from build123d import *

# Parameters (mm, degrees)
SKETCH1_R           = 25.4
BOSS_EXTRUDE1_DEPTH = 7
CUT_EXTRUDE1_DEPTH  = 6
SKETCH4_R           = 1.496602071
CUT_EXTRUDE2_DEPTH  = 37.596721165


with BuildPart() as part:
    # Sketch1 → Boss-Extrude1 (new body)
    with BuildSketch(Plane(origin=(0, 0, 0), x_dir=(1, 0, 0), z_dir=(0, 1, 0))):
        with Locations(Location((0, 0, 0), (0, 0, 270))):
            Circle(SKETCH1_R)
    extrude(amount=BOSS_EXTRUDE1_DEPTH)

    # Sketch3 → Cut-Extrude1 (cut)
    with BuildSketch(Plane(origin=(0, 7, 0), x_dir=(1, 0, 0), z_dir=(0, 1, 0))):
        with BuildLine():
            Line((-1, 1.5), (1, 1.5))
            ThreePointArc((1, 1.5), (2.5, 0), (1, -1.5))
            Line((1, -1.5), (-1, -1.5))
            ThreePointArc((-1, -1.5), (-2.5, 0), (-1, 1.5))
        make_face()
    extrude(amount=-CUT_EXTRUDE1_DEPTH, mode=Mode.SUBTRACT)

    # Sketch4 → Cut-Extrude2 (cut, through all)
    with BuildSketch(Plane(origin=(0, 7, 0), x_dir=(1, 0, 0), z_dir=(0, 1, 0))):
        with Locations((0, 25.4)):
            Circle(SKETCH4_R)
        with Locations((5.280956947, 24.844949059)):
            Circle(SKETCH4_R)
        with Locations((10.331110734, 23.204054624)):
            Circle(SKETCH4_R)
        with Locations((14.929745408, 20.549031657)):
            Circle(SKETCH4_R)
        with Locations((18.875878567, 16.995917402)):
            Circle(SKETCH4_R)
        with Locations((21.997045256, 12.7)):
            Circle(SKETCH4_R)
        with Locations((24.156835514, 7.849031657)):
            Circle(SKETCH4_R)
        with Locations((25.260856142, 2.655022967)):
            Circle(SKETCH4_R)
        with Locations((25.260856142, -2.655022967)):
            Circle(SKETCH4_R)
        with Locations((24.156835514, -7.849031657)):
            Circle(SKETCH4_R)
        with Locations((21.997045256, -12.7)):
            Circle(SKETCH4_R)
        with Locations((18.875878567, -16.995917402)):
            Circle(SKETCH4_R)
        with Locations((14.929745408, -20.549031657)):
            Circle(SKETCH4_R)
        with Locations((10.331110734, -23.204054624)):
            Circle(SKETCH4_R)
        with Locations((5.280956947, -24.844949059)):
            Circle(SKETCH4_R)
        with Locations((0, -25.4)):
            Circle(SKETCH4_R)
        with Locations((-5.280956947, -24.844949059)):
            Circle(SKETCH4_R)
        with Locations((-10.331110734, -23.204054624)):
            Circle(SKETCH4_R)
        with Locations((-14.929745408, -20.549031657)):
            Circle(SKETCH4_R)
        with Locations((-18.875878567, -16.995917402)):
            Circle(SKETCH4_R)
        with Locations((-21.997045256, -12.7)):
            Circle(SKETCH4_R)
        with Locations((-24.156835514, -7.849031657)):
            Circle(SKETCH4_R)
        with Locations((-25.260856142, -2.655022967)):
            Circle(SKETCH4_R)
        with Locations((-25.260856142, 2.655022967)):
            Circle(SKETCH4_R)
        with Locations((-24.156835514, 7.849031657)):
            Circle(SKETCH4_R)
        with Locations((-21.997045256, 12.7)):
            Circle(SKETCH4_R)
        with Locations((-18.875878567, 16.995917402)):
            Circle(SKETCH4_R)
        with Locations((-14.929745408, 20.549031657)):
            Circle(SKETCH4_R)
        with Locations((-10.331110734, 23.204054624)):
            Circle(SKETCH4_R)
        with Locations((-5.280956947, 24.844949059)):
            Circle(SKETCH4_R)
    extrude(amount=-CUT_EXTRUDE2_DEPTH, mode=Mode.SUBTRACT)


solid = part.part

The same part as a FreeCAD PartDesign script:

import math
import FreeCAD as App
import Part
import Sketcher

V = App.Vector
Q = App.Units.Quantity

doc = App.newDocument("Part")
body = doc.addObject("PartDesign::Body", "Body")

# Sketch on XZ plane
sketch1 = body.newObject("Sketcher::SketchObject", "Sketch")
sketch1.AttachmentSupport = (doc.getObject("XZ_Plane"), [""])
sketch1.MapMode = "FlatFace"
sketch1.addGeometry(Part.Circle(V(0, 0, 0), V(0, 0, 1), 25), False)
sketch1.addConstraint([
    Sketcher.Constraint("Coincident", 0, 3, -1, 1),
    Sketcher.Constraint("Diameter", 0, Q("50.8 mm")),
])
pad1 = body.newObject("PartDesign::Pad", "Pad")
pad1.Profile = sketch1
pad1.Length = 7
pad1.Reversed = True

# Sketch on XZ plane
sketch2 = body.newObject("Sketcher::SketchObject", "Sketch001")
sketch2.AttachmentSupport = (doc.getObject("XZ_Plane"), [""])
sketch2.MapMode = "FlatFace"
sketch2.AttachmentOffset = App.Placement(V(0, 0, -7), App.Rotation())
sketch2.addGeometry([
    Part.LineSegment(V(1, -1.5, 0), V(-1, -1.5, 0)),
    Part.ArcOfCircle(Part.Circle(V(-1, 0, 0), V(0, 0, 1), 1.5), math.radians(90), math.radians(270)),
    Part.LineSegment(V(-1, 1.5, 0), V(1, 1.5, 0)),
    Part.ArcOfCircle(Part.Circle(V(1, 0, 0), V(0, 0, 1), 1.5), math.radians(-90), math.radians(90)),
], False)
sketch2.addConstraint([
    Sketcher.Constraint("Tangent", 0, 2, 1, 2),
    Sketcher.Constraint("Tangent", 1, 1, 2, 1),
    Sketcher.Constraint("Tangent", 2, 2, 3, 2),
    Sketcher.Constraint("Tangent", 3, 1, 0, 1),
    Sketcher.Constraint("Horizontal", 0),
    Sketcher.Constraint("Horizontal", 2),
    Sketcher.Constraint("Symmetric", 1, 3, 3, 3, -1, 1),
    Sketcher.Constraint("Radius", 1, Q("1.5 mm")),
    Sketcher.Constraint("DistanceX", 0, 2, 0, 1, Q("2 mm")),
])
pocket1 = body.newObject("PartDesign::Pocket", "Pocket")
pocket1.Profile = sketch2
pocket1.Length = 6
pocket1.Reversed = True

# Sketch on XZ plane
sketch3 = body.newObject("Sketcher::SketchObject", "Sketch002")
sketch3.AttachmentSupport = (doc.getObject("XZ_Plane"), [""])
sketch3.MapMode = "FlatFace"
sketch3.AttachmentOffset = App.Placement(V(0, 0, -7), App.Rotation())
sketch3.addGeometry([
    Part.Circle(V(0, -25.4, 0), V(0, 0, 1), 1.5),  # 0
    Part.Circle(V(5.3, -24.8, 0), V(0, 0, 1), 1.5),  # 1
    Part.Circle(V(10.3, -23.2, 0), V(0, 0, 1), 1.5),  # 2
    Part.Circle(V(14.9, -20.5, 0), V(0, 0, 1), 1.5),  # 3
    Part.Circle(V(18.9, -17, 0), V(0, 0, 1), 1.5),  # 4
    Part.Circle(V(22, -12.7, 0), V(0, 0, 1), 1.5),  # 5
    Part.Circle(V(24.2, -7.8, 0), V(0, 0, 1), 1.5),  # 6
    Part.Circle(V(25.3, -2.7, 0), V(0, 0, 1), 1.5),  # 7
    Part.Circle(V(25.3, 2.7, 0), V(0, 0, 1), 1.5),  # 8
    Part.Circle(V(24.2, 7.8, 0), V(0, 0, 1), 1.5),  # 9
    Part.Circle(V(22, 12.7, 0), V(0, 0, 1), 1.5),  # 10
    Part.Circle(V(18.9, 17, 0), V(0, 0, 1), 1.5),  # 11
    Part.Circle(V(14.9, 20.5, 0), V(0, 0, 1), 1.5),  # 12
    Part.Circle(V(10.3, 23.2, 0), V(0, 0, 1), 1.5),  # 13
    Part.Circle(V(5.3, 24.8, 0), V(0, 0, 1), 1.5),  # 14
    Part.Circle(V(0, 25.4, 0), V(0, 0, 1), 1.5),  # 15
    Part.Circle(V(-5.3, 24.8, 0), V(0, 0, 1), 1.5),  # 16
    Part.Circle(V(-10.3, 23.2, 0), V(0, 0, 1), 1.5),  # 17
    Part.Circle(V(-14.9, 20.5, 0), V(0, 0, 1), 1.5),  # 18
    Part.Circle(V(-18.9, 17, 0), V(0, 0, 1), 1.5),  # 19
    Part.Circle(V(-22, 12.7, 0), V(0, 0, 1), 1.5),  # 20
    Part.Circle(V(-24.2, 7.8, 0), V(0, 0, 1), 1.5),  # 21
    Part.Circle(V(-25.3, 2.7, 0), V(0, 0, 1), 1.5),  # 22
    Part.Circle(V(-25.3, -2.7, 0), V(0, 0, 1), 1.5),  # 23
    Part.Circle(V(-24.2, -7.8, 0), V(0, 0, 1), 1.5),  # 24
    Part.Circle(V(-22, -12.7, 0), V(0, 0, 1), 1.5),  # 25
    Part.Circle(V(-18.9, -17, 0), V(0, 0, 1), 1.5),  # 26
    Part.Circle(V(-14.9, -20.5, 0), V(0, 0, 1), 1.5),  # 27
    Part.Circle(V(-10.3, -23.2, 0), V(0, 0, 1), 1.5),  # 28
    Part.Circle(V(-5.3, -24.8, 0), V(0, 0, 1), 1.5),  # 29
], False)
sketch3.addConstraint([
    Sketcher.Constraint("Equal", 0, 1),
    Sketcher.Constraint("Equal", 1, 2),
    Sketcher.Constraint("Equal", 2, 3),
    Sketcher.Constraint("Equal", 3, 4),
    Sketcher.Constraint("Equal", 4, 5),
    Sketcher.Constraint("Equal", 5, 6),
    Sketcher.Constraint("Equal", 6, 7),
    Sketcher.Constraint("Equal", 7, 8),
    Sketcher.Constraint("Equal", 8, 9),
    Sketcher.Constraint("Equal", 9, 10),
    Sketcher.Constraint("Equal", 10, 11),
    Sketcher.Constraint("Equal", 11, 12),
    Sketcher.Constraint("Equal", 12, 13),
    Sketcher.Constraint("Equal", 13, 14),
    Sketcher.Constraint("Equal", 14, 15),
    Sketcher.Constraint("Equal", 15, 16),
    Sketcher.Constraint("Equal", 16, 17),
    Sketcher.Constraint("Equal", 17, 18),
    Sketcher.Constraint("Equal", 18, 19),
    Sketcher.Constraint("Equal", 19, 20),
    Sketcher.Constraint("Equal", 20, 21),
    Sketcher.Constraint("Equal", 21, 22),
    Sketcher.Constraint("Equal", 22, 23),
    Sketcher.Constraint("Equal", 23, 24),
    Sketcher.Constraint("Equal", 24, 25),
    Sketcher.Constraint("Equal", 25, 26),
    Sketcher.Constraint("Equal", 26, 27),
    Sketcher.Constraint("Equal", 27, 28),
    Sketcher.Constraint("Equal", 28, 29),
    Sketcher.Constraint("Symmetric", 0, 3, 15, 3, -1, 1),
    Sketcher.Constraint("Symmetric", 1, 3, 16, 3, -1, 1),
    Sketcher.Constraint("Symmetric", 2, 3, 17, 3, -1, 1),
    Sketcher.Constraint("Symmetric", 3, 3, 18, 3, -1, 1),
    Sketcher.Constraint("Symmetric", 4, 3, 19, 3, -1, 1),
    Sketcher.Constraint("Symmetric", 5, 3, 20, 3, -1, 1),
    Sketcher.Constraint("Symmetric", 6, 3, 21, 3, -1, 1),
    Sketcher.Constraint("Symmetric", 7, 3, 22, 3, -1, 1),
    Sketcher.Constraint("Symmetric", 8, 3, 23, 3, -1, 1),
    Sketcher.Constraint("Symmetric", 9, 3, 24, 3, -1, 1),
    Sketcher.Constraint("Symmetric", 10, 3, 25, 3, -1, 1),
    Sketcher.Constraint("Symmetric", 11, 3, 26, 3, -1, 1),
    Sketcher.Constraint("Symmetric", 12, 3, 27, 3, -1, 1),
    Sketcher.Constraint("Symmetric", 13, 3, 28, 3, -1, 1),
    Sketcher.Constraint("Symmetric", 14, 3, 29, 3, -1, 1),
    Sketcher.Constraint("Symmetric", 14, 3, 16, 3, -2),
    Sketcher.Constraint("Symmetric", 13, 3, 17, 3, -2),
    Sketcher.Constraint("Symmetric", 12, 3, 18, 3, -2),
    Sketcher.Constraint("Symmetric", 11, 3, 19, 3, -2),
    Sketcher.Constraint("Symmetric", 10, 3, 20, 3, -2),
    Sketcher.Constraint("Symmetric", 9, 3, 21, 3, -2),
    Sketcher.Constraint("Symmetric", 8, 3, 22, 3, -2),
    Sketcher.Constraint("PointOnObject", 0, 3, -2),
    Sketcher.Constraint("DistanceY", 0, 3, -1, 1, Q("25.4 mm")),
    Sketcher.Constraint("DistanceY", 5, 3, -1, 1, Q("12.7 mm")),
    Sketcher.Constraint("DistanceY", 3, 3, 6, 3, Q("12.7 mm")),
    Sketcher.Constraint("Diameter", 0, Q("2.993204 mm")),
    Sketcher.Constraint("DistanceX", 3, 3, 5, 3, Q("7.0673 mm")),
    Sketcher.Constraint("DistanceY", 1, 3, -1, 1, Q("24.844949 mm")),
    Sketcher.Constraint("DistanceX", -1, 1, 2, 3, Q("10.331111 mm")),
    Sketcher.Constraint("DistanceY", 3, 3, -1, 1, Q("20.549032 mm")),
    Sketcher.Constraint("DistanceX", -1, 1, 4, 3, Q("18.875879 mm")),
    Sketcher.Constraint("DistanceX", 1, 3, 3, 3, Q("9.648788 mm")),
    Sketcher.Constraint("DistanceX", 1, 3, 4, 3, Q("13.594922 mm")),
    Sketcher.Constraint("DistanceY", 1, 3, 4, 3, Q("7.849032 mm")),
    Sketcher.Constraint("DistanceX", 5, 3, 6, 3, Q("2.15979 mm")),
    Sketcher.Constraint("DistanceX", 6, 3, 7, 3, Q("1.104021 mm")),
    Sketcher.Constraint("DistanceY", 6, 3, 7, 3, Q("5.194009 mm")),
    Sketcher.Constraint("DistanceY", 2, 3, 7, 3, Q("20.549032 mm")),
])
pocket2 = body.newObject("PartDesign::Pocket", "Pocket001")
pocket2.Profile = sketch3
pocket2.Type = "ThroughAll"
pocket2.Reversed = True

doc.recompute()
